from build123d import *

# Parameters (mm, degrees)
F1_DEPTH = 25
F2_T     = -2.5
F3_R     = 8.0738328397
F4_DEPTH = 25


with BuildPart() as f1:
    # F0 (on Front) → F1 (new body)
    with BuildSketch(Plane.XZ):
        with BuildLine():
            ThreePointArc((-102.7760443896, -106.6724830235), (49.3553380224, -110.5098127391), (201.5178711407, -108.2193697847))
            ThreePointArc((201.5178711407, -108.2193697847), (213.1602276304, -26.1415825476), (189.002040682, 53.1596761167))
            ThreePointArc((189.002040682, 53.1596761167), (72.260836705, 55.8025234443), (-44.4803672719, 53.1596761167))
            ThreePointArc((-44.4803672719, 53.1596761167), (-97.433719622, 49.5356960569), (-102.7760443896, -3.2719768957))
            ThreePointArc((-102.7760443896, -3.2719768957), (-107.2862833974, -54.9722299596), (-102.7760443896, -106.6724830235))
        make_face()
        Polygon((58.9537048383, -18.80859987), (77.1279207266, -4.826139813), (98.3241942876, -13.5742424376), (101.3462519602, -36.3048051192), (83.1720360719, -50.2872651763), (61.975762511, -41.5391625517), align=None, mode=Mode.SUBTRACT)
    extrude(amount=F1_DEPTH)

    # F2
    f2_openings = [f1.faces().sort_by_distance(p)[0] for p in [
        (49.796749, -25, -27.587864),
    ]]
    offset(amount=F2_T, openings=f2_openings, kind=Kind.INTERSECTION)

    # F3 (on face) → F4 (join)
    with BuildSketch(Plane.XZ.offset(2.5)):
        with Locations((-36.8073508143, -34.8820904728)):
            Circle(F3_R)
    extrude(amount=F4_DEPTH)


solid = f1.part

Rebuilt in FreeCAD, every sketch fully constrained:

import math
import FreeCAD as App
import Part
import Sketcher

V = App.Vector
Q = App.Units.Quantity


def faces_at(feature, points):
    """Names of the faces that lie closest to the given points."""
    faces = feature.Shape.Faces
    near = lambda p: min(range(len(faces)), key=lambda i: faces[i].distToShape(Part.Vertex(*p))[0])
    return sorted({f"Face{near(p) + 1}" for p in points})

doc = App.newDocument("Part")
params = doc.addObject("Spreadsheet::Sheet", "Params")
for row, (alias, value) in enumerate([
    ("pad1_length", "25 mm"),
    ("thickness_wall", "2.5 mm"),
    ("pad2_length", "25 mm"),
], start=1):
    params.set(f"A{row}", alias)
    params.set(f"B{row}", "=" + value)
    params.setAlias(f"B{row}", alias)

body = doc.addObject("PartDesign::Body", "Body")

# Sketch on XZ plane
sketch1 = body.newObject("Sketcher::SketchObject", "Sketch")
sketch1.AttachmentSupport = (doc.getObject("XZ_Plane"), [""])
sketch1.MapMode = "FlatFace"
sketch1.addGeometry(Part.ArcOfCircle(Part.Circle(V(68.567013, 3668.691115, 0), V(0, 0, 1), 3779.249759), math.radians(-92.598558), math.radians(-87.983966)), False)
sketch1.addGeometry(Part.ArcOfCircle(Part.Circle(V(22.346955, -40.940199, 0), V(0, 0, 1), 191.386269), math.radians(-20.581295), math.radians(29.450745)), False)
sketch1.addGeometry(Part.ArcOfCircle(Part.Circle(V(72.260837, -2523.894988, 0), V(0, 0, 1), 2579.697511), math.radians(87.40626), math.radians(92.59374)), False)
sketch1.addGeometry(Part.ArcOfCircle(Part.Circle(V(-68.809356, 19.965826, 0), V(0, 0, 1), 41.154968), math.radians(53.760945), math.radians(214.3774)), False)
sketch1.addGeometry(Part.ArcOfCircle(Part.Circle(V(191.285302, -54.97223, 0), V(0, 0, 1), 298.571585), math.radians(170.028479), math.radians(189.971521)), False)
sketch1.addGeometry(Part.LineSegment(V(61.975763, -41.539163, 0), V(58.953705, -18.8086, 0)), False)
sketch1.addGeometry(Part.LineSegment(V(58.953705, -18.8086, 0), V(77.127921, -4.82614, 0)), False)
sketch1.addGeometry(Part.LineSegment(V(77.127921, -4.82614, 0), V(98.324194, -13.574242, 0)), False)
sketch1.addGeometry(Part.LineSegment(V(98.324194, -13.574242, 0), V(101.346252, -36.304805, 0)), False)
sketch1.addGeometry(Part.LineSegment(V(101.346252, -36.304805, 0), V(83.172036, -50.287265, 0)), False)
sketch1.addGeometry(Part.LineSegment(V(83.172036, -50.287265, 0), V(61.975763, -41.539163, 0)), False)
sketch1.addConstraint(Sketcher.Constraint("Coincident", 0, 2, 1, 1))
sketch1.addConstraint(Sketcher.Constraint("Coincident", 1, 2, 2, 1))
sketch1.addConstraint(Sketcher.Constraint("Coincident", 2, 2, 3, 1))
sketch1.addConstraint(Sketcher.Constraint("Coincident", 3, 2, 4, 1))
sketch1.addConstraint(Sketcher.Constraint("Coincident", 4, 2, 0, 1))
sketch1.addConstraint(Sketcher.Constraint("Coincident", 5, 2, 6, 1))
sketch1.addConstraint(Sketcher.Constraint("Coincident", 6, 2, 7, 1))
sketch1.addConstraint(Sketcher.Constraint("Coincident", 7, 2, 8, 1))
sketch1.addConstraint(Sketcher.Constraint("Coincident", 8, 2, 9, 1))
sketch1.addConstraint(Sketcher.Constraint("Coincident", 9, 2, 10, 1))
sketch1.addConstraint(Sketcher.Constraint("Coincident", 10, 2, 5, 1))
sketch1.addConstraint(Sketcher.Constraint("Parallel", 5, 8))
sketch1.addConstraint(Sketcher.Constraint("Parallel", 6, 9))
sketch1.addConstraint(Sketcher.Constraint("Parallel", 7, 10))
sketch1.addConstraint(Sketcher.Constraint("Vertical", 3, 2, 4, 2))
sketch1.addConstraint(Sketcher.Constraint("Equal", 5, 6))
sketch1.addConstraint(Sketcher.Constraint("Equal", 6, 7))
sketch1.addConstraint(Sketcher.Constraint("Equal", 7, 8))
sketch1.addConstraint(Sketcher.Constraint("Radius", 0, Q("3779.249759 mm")))
sketch1.addConstraint(Sketcher.Constraint("Radius", 1, Q("191.386269 mm")))
sketch1.addConstraint(Sketcher.Constraint("Radius", 2, Q("2579.697511 mm")))
sketch1.addConstraint(Sketcher.Constraint("Radius", 3, Q("41.154968 mm")))
sketch1.addConstraint(Sketcher.Constraint("Radius", 4, Q("298.571585 mm")))
sketch1.addConstraint(Sketcher.Constraint("DistanceX", 3, 2, 1, 3, Q("125.123 mm")))
sketch1.addConstraint(Sketcher.Constraint("DistanceY", 1, 3, -1, 1, Q("40.940199 mm")))
sketch1.addConstraint(Sketcher.Constraint("DistanceY", 5, 2, -1, 1, Q("18.8086 mm")))
sketch1.addConstraint(Sketcher.Constraint("DistanceY", 4, 3, -1, 1, Q("54.97223 mm")))
sketch1.addConstraint(Sketcher.Constraint("DistanceY", 0, 2, -1, 1, Q("108.21937 mm")))
sketch1.addConstraint(Sketcher.Constraint("DistanceX", -1, 1, 1, 2, Q("189.002041 mm")))
sketch1.addConstraint(Sketcher.Constraint("DistanceX", -1, 1, 6, 2, Q("77.127921 mm")))
sketch1.addConstraint(Sketcher.Constraint("DistanceY", 6, 2, -1, 1, Q("4.82614 mm")))
sketch1.addConstraint(Sketcher.Constraint("DistanceX", -1, 1, 8, 2, Q("101.346252 mm")))
sketch1.addConstraint(Sketcher.Constraint("DistanceX", 1, 3, 2, 3, Q("49.913881 mm")))
sketch1.addConstraint(Sketcher.Constraint("DistanceY", 2, 3, 1, 3, Q("2482.954789 mm")))
sketch1.addConstraint(Sketcher.Constraint("DistanceX", 3, 3, 1, 3, Q("91.156312 mm")))
sketch1.addConstraint(Sketcher.Constraint("DistanceX", 3, 3, 0, 3, Q("137.37637 mm")))
sketch1.addConstraint(Sketcher.Constraint("DistanceX", 1, 3, 5, 2, Q("36.606749 mm")))
sketch1.addConstraint(Sketcher.Constraint("DistanceX", 5, 2, 7, 2, Q("39.370489 mm")))
pad1 = body.newObject("PartDesign::Pad", "Pad")
pad1.Profile = sketch1
pad1.setExpression("Length", "Params.pad1_length")
doc.recompute()

thickness = body.newObject("PartDesign::Thickness", "Thickness")
thickness.Base = (pad1, faces_at(pad1, [(51.884, -25, -24.719)]))
thickness.setExpression("Value", "Params.thickness_wall")
thickness.Reversed = True
thickness.Join = "Intersection"

# Sketch on XZ plane
sketch2 = body.newObject("Sketcher::SketchObject", "Sketch001")
sketch2.AttachmentSupport = (doc.getObject("XZ_Plane"), [""])
sketch2.MapMode = "FlatFace"
sketch2.AttachmentOffset = App.Placement(V(0, 0, 2.5), App.Rotation())
sketch2.addGeometry(Part.Circle(V(-36.807351, -34.88209, 0), V(0, 0, 1), 8.073833), False)
sketch2.addConstraint(Sketcher.Constraint("Diameter", 0, Q("16.147666 mm")))
sketch2.addConstraint(Sketcher.Constraint("DistanceX", 0, 3, -1, 1, Q("36.807351 mm")))
sketch2.addConstraint(Sketcher.Constraint("DistanceY", 0, 3, -1, 1, Q("34.88209 mm")))
pad2 = body.newObject("PartDesign::Pad", "Pad001")
pad2.Profile = sketch2
pad2.setExpression("Length", "Params.pad2_length")

doc.recompute()
